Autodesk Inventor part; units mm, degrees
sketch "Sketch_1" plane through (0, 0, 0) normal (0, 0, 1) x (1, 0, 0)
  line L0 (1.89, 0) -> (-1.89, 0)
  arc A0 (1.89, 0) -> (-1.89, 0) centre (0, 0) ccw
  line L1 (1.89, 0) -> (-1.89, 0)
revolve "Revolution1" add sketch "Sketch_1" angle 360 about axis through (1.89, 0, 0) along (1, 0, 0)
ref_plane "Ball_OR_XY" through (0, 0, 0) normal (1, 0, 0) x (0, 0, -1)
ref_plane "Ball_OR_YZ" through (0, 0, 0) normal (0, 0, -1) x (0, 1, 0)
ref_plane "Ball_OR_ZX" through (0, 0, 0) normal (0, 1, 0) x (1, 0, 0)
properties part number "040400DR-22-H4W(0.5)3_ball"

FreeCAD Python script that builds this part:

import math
import FreeCAD as App
import Part
import Sketcher

doc = App.newDocument("Part")
params = doc.addObject("Spreadsheet::Sheet", "Params")
for row, (alias, value) in enumerate([
    ("sketch1_radius", "1.89 mm"),
    ("revolution_angle", "360 deg"),
], start=1):
    params.set(f"A{row}", alias)
    params.set(f"B{row}", "=" + value)
    params.setAlias(f"B{row}", alias)

body = doc.addObject("PartDesign::Body", "Body")

# Sketch on XY plane
sketch1 = doc.addObject("Sketcher::SketchObject", "Sketch")
body.addObject(sketch1)
sketch1.AttachmentSupport = (doc.XY_Plane, [""])
sketch1.MapMode = "FlatFace"
sketch1.addGeometry([
    Part.LineSegment(App.Vector(-1.89, 0, 0), App.Vector(1.89, 0, 0)),
    Part.ArcOfCircle(Part.Circle(App.Vector(0, 0, 0), App.Vector(0, 0, 1), 1.89), math.radians(0), math.radians(180)),
], False)
sketch1.addConstraint([
    Sketcher.Constraint("Coincident", 0, 1, 1, 2),
    Sketcher.Constraint("Coincident", 1, 1, 0, 2),
    Sketcher.Constraint("Horizontal", 0),
    Sketcher.Constraint("Coincident", 1, 3, -1, 1),
    Sketcher.Constraint("PointOnObject", 0, 1, -1),
    Sketcher.Constraint("Radius", 1, 1.89),
])
sketch1.setExpression("Constraints[5]", "Params.sketch1_radius")
revolution = doc.addObject("PartDesign::Revolution", "Revolution")
body.addObject(revolution)
revolution.Profile = sketch1
revolution.ReferenceAxis = (sketch1, ["H_Axis"])
revolution.setExpression("Angle", "Params.revolution_angle")

doc.recompute()
